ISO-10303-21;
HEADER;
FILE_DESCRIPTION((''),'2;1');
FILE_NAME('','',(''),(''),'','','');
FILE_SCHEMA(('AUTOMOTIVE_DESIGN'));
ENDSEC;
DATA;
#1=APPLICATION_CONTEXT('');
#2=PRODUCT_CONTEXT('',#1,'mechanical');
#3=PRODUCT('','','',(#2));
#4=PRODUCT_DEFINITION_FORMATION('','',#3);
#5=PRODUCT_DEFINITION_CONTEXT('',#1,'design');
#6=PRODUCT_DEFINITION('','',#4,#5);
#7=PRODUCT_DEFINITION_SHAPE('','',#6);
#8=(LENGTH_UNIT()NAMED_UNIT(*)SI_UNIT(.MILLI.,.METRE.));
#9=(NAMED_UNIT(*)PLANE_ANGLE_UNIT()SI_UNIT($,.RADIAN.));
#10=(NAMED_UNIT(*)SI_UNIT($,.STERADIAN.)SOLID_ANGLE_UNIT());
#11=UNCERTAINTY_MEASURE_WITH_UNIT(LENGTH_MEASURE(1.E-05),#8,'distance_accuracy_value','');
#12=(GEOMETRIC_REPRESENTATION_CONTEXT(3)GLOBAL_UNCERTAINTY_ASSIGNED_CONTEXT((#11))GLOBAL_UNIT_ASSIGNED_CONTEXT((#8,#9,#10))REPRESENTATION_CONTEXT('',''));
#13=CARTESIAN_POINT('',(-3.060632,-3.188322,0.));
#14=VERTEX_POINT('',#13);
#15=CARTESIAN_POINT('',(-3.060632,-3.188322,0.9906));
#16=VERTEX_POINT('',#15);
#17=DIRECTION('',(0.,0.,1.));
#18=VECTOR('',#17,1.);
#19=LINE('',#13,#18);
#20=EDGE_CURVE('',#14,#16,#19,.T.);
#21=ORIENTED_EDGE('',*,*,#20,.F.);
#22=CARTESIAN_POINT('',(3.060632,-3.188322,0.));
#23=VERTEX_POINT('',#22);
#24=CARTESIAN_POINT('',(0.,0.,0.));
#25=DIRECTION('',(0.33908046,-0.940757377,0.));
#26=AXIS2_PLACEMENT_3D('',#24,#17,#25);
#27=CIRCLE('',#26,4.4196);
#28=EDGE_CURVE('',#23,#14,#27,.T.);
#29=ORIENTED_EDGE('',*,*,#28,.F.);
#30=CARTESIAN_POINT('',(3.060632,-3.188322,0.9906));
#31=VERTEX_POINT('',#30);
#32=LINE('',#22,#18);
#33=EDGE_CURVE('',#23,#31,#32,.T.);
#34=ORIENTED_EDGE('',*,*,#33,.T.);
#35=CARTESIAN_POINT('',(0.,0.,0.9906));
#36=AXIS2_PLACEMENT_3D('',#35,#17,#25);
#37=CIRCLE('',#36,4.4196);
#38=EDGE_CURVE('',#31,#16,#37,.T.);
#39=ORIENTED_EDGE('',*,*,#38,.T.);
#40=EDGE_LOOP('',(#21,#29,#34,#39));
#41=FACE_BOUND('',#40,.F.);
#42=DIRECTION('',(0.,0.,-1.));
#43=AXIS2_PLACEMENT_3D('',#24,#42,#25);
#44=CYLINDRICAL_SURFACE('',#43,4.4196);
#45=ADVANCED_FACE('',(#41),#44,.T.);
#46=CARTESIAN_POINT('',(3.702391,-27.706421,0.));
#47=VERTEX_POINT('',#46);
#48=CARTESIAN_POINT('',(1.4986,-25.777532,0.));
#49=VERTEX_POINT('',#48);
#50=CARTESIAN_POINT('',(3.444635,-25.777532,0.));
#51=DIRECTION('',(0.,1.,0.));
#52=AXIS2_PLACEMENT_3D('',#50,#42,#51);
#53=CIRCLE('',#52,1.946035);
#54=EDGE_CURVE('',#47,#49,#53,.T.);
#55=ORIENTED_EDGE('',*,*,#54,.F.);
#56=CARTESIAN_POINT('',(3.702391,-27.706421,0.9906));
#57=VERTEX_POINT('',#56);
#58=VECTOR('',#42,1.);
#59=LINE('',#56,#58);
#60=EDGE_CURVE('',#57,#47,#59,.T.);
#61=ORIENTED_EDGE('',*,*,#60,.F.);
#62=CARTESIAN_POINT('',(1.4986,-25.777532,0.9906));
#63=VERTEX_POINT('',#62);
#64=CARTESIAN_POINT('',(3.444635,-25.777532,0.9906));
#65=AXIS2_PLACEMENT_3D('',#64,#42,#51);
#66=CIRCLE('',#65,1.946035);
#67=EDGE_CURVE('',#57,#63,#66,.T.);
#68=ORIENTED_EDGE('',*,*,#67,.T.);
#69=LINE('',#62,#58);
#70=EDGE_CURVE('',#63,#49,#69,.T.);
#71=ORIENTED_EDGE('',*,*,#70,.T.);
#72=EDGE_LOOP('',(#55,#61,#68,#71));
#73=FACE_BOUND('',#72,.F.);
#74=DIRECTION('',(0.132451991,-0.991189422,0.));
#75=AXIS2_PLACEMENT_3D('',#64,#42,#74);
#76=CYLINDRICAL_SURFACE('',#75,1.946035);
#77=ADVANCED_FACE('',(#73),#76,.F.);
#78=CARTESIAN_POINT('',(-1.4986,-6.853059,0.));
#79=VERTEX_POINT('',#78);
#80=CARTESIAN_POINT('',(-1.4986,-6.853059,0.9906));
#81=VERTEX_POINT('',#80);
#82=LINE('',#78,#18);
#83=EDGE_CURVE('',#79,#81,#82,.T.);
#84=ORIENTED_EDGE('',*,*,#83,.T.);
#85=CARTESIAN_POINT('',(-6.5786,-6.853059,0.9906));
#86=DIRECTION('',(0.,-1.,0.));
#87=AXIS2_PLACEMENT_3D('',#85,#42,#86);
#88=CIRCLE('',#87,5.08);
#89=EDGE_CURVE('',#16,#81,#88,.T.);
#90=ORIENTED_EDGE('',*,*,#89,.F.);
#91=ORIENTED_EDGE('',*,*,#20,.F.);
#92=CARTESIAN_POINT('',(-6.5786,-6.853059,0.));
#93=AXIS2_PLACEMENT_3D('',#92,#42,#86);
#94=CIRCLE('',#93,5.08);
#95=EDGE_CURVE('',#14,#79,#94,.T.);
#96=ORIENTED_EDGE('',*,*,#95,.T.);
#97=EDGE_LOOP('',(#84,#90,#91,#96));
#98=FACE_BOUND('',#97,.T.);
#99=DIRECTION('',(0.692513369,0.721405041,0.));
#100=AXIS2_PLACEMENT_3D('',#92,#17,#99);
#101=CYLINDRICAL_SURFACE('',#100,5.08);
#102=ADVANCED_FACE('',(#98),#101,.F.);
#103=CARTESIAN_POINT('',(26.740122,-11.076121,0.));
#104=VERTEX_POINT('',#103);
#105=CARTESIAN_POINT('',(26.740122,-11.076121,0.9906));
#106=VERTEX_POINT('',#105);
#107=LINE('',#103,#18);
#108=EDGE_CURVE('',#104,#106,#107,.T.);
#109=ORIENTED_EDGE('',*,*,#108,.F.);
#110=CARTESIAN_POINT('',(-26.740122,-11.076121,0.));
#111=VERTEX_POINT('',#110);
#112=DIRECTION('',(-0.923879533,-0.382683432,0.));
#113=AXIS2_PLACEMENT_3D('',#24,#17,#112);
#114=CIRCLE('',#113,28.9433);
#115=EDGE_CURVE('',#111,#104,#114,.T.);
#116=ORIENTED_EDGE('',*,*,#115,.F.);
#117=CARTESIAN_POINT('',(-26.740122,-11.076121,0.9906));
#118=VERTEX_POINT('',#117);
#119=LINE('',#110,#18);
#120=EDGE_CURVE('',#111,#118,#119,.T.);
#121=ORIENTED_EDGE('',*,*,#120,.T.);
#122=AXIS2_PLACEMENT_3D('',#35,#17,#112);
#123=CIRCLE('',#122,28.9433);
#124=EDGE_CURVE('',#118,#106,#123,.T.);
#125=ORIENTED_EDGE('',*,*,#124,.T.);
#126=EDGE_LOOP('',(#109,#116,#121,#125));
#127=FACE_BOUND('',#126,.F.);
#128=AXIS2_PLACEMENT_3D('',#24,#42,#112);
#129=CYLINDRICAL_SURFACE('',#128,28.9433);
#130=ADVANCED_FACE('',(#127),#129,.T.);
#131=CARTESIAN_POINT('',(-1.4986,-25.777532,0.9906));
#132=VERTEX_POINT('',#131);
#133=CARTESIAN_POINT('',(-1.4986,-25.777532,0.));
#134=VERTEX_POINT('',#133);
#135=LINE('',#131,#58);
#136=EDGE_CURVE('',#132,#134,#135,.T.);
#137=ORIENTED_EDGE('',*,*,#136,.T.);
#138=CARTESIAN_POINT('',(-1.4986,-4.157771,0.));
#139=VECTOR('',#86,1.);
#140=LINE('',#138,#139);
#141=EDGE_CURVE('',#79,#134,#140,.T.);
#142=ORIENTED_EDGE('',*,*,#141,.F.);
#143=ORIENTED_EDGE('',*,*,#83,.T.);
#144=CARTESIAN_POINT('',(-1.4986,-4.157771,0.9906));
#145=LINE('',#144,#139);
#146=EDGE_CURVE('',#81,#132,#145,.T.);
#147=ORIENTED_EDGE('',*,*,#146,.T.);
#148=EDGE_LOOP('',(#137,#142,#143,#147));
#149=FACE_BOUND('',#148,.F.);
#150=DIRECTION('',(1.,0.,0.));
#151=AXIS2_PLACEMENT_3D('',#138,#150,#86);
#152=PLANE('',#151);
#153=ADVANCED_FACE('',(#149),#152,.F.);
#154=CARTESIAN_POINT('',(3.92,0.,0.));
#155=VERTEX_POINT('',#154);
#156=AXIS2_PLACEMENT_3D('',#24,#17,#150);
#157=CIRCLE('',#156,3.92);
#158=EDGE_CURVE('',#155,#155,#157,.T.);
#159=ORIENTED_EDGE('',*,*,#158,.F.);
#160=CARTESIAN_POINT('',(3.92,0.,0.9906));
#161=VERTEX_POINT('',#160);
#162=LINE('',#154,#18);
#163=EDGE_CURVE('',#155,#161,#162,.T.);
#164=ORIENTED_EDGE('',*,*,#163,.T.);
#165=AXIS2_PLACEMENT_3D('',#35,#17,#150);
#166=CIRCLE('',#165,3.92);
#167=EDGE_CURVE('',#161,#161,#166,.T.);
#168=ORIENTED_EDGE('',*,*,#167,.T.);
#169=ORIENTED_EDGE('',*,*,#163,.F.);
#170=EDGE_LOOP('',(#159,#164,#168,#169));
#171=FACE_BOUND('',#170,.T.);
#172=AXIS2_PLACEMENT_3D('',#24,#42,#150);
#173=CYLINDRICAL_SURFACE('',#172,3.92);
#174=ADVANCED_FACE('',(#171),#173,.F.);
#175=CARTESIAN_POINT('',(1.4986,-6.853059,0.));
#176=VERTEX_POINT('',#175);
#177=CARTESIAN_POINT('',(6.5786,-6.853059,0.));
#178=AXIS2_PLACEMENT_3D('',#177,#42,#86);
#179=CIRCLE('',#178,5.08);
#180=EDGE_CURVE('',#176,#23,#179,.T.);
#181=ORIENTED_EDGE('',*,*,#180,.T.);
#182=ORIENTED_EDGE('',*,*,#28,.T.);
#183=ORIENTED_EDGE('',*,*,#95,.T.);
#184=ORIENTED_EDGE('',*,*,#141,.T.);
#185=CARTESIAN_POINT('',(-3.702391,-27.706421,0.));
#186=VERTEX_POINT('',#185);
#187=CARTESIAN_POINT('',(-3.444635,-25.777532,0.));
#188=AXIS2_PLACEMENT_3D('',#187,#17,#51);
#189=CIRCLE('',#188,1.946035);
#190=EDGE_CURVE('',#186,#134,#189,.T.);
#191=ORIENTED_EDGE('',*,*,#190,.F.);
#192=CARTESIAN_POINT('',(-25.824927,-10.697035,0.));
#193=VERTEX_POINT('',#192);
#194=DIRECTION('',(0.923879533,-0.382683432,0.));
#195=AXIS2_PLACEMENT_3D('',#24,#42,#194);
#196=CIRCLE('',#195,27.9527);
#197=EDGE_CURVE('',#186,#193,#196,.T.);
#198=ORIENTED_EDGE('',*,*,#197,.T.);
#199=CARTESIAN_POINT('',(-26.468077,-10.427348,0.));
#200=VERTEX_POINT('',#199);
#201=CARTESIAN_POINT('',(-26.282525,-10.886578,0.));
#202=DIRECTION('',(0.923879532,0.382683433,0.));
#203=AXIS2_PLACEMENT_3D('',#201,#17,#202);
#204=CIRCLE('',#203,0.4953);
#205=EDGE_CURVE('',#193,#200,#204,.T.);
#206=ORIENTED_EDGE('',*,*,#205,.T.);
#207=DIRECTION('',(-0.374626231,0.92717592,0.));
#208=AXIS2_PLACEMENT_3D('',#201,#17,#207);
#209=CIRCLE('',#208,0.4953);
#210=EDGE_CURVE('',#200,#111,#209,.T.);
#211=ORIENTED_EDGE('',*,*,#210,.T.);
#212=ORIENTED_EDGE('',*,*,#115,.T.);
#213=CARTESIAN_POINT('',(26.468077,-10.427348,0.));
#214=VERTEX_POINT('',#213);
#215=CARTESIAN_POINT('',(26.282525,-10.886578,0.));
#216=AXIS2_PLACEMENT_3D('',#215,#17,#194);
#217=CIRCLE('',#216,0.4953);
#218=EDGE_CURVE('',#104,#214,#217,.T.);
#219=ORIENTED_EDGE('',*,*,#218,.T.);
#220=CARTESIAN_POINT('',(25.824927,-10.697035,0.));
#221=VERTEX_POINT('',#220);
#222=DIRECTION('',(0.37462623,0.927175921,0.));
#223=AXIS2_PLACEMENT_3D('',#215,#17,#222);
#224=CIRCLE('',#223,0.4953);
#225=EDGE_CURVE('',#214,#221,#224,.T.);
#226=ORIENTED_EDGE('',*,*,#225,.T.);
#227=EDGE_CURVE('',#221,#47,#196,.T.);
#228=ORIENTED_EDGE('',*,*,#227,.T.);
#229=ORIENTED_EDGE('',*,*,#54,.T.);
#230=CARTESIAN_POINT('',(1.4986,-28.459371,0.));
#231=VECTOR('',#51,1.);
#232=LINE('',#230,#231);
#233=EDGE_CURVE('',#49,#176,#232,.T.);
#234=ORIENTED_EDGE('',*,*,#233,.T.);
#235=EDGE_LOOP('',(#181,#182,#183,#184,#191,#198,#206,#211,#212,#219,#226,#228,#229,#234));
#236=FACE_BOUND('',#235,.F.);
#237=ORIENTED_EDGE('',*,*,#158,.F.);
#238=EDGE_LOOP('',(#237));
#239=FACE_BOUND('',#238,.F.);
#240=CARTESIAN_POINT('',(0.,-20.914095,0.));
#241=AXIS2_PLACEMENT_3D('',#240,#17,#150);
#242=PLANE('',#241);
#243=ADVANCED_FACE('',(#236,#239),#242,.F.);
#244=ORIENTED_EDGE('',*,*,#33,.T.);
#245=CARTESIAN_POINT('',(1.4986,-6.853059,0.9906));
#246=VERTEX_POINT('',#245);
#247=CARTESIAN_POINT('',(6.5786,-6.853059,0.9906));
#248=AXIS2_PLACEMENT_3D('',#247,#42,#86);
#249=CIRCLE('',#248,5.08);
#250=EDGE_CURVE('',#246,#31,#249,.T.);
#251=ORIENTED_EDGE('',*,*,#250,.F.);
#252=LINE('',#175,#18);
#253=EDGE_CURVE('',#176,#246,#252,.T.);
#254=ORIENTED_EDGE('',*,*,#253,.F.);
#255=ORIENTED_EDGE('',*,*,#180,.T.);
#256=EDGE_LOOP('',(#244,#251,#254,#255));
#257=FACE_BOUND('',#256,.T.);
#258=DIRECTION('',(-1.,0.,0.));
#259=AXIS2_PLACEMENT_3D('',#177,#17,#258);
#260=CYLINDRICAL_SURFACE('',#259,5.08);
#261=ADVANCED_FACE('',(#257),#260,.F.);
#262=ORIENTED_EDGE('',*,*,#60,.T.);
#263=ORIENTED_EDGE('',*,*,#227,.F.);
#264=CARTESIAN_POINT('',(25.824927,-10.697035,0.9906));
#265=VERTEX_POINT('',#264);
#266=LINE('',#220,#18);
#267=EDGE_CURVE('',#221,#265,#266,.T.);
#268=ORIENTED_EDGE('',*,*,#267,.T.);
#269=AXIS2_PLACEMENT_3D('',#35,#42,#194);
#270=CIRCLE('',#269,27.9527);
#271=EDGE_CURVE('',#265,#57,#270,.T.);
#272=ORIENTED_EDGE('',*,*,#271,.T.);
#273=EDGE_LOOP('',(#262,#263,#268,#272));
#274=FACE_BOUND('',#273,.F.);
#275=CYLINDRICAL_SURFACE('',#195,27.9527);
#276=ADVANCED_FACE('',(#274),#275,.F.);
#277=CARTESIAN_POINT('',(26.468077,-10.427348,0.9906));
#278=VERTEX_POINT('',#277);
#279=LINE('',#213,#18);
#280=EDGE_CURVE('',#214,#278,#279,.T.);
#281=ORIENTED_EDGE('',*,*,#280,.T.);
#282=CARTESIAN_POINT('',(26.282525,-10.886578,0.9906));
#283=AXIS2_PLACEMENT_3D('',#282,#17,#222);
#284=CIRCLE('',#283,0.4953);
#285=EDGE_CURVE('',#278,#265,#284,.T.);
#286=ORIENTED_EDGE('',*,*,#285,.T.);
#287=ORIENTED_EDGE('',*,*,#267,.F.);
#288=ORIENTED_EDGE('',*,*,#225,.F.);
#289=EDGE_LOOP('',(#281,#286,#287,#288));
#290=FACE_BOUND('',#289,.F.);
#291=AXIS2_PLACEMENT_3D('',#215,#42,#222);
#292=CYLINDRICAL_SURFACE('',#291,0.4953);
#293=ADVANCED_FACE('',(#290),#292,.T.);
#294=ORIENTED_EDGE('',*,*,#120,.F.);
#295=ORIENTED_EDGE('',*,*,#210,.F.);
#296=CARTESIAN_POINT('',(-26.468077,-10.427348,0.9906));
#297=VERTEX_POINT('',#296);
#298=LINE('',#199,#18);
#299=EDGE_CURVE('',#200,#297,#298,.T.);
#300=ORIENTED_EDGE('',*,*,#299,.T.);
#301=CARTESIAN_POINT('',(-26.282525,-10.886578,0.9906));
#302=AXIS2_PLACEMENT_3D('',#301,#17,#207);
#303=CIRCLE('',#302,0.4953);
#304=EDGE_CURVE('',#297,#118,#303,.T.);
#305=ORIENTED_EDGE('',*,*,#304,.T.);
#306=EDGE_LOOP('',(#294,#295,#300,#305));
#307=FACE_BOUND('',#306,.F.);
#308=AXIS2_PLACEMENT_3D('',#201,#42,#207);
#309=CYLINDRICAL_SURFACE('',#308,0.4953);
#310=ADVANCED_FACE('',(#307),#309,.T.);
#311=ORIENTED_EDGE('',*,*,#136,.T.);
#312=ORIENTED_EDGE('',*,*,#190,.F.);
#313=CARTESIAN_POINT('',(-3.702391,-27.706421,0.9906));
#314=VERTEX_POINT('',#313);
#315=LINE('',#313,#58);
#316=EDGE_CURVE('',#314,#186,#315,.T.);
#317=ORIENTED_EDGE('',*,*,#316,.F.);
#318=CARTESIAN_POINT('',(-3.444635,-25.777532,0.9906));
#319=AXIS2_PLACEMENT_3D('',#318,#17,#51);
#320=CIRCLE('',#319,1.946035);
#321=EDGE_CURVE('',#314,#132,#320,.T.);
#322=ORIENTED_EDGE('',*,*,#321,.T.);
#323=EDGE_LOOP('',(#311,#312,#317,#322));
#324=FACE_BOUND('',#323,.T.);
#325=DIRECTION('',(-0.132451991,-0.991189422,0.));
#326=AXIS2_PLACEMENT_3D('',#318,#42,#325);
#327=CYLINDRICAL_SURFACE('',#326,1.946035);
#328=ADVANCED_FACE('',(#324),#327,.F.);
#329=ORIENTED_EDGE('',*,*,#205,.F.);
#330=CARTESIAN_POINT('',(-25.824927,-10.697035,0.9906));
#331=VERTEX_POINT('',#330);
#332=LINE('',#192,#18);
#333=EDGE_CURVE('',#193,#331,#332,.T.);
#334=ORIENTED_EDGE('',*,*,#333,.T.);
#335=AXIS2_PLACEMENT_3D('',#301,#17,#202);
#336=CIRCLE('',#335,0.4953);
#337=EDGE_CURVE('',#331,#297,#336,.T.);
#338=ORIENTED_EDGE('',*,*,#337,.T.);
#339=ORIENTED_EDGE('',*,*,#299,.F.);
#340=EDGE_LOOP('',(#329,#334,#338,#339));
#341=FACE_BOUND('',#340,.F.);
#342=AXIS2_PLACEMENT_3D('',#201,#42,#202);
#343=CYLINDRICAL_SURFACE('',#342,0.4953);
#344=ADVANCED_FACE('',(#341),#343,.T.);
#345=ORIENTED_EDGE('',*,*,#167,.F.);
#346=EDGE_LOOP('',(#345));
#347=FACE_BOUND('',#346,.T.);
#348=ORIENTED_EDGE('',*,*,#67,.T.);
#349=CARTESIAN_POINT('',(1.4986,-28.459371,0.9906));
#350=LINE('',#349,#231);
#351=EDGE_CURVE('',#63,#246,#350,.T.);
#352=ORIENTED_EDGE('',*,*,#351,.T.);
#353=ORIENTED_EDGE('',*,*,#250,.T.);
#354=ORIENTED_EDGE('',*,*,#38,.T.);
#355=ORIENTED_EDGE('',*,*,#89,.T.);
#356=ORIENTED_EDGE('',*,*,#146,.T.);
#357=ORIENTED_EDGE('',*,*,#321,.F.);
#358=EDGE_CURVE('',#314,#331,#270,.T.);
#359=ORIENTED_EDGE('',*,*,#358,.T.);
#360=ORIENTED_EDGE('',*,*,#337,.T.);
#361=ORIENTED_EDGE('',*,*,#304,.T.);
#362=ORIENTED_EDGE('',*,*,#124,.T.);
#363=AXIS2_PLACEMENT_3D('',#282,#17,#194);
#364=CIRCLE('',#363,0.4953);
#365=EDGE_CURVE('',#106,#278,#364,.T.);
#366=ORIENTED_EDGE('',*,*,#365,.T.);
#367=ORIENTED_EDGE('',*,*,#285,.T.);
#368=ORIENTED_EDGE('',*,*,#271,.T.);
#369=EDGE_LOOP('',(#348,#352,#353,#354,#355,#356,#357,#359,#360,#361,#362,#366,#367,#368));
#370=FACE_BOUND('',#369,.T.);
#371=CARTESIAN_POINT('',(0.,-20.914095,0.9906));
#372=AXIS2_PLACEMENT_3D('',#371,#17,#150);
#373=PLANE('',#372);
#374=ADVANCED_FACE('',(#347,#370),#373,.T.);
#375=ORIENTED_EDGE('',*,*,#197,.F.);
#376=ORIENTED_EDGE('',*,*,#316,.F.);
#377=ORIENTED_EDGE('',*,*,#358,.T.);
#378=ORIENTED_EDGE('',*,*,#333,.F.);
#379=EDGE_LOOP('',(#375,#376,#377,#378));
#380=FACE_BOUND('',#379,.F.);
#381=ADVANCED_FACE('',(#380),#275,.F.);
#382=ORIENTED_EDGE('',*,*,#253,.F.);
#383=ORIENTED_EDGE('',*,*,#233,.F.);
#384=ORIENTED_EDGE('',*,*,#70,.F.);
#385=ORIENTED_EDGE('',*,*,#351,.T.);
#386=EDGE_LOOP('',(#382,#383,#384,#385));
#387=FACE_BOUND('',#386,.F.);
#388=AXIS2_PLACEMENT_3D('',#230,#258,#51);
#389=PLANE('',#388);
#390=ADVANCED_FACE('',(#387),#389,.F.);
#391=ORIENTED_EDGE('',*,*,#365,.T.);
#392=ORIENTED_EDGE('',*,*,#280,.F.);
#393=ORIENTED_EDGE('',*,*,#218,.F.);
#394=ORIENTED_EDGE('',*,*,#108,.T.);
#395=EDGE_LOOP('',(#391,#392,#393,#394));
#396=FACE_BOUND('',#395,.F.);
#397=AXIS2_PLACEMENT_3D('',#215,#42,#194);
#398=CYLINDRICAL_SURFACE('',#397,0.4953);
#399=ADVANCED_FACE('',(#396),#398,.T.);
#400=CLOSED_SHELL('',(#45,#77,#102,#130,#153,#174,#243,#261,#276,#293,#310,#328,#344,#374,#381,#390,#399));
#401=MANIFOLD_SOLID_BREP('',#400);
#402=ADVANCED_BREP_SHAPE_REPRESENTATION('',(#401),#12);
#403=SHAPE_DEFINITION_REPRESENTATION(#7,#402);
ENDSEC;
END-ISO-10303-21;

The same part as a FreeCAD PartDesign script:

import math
import FreeCAD as App
import Part
import Sketcher

V = App.Vector
Q = App.Units.Quantity


def edges_at(feature, points):
    """Names of the edges that pass closest to the given points."""
    edges = feature.Shape.Edges
    near = lambda p: min(range(len(edges)), key=lambda i: edges[i].distToShape(Part.Vertex(*p))[0])
    return sorted({f"Edge{near(p) + 1}" for p in points})

doc = App.newDocument("Part")
params = doc.addObject("Spreadsheet::Sheet", "Params")
for row, (alias, value) in enumerate([
    ("sketch1_radius", "0.174 in"),
    ("sketch1_width", "0.118 in"),
    ("pad1_length", "0.039 in"),
    ("fillet_radius", "0.2 in"),
    ("pad2_length", "0.039 in"),
    ("fillet2_radius", "1.946035 mm"),
], start=1):
    params.set(f"A{row}", alias)
    params.set(f"B{row}", "=" + value)
    params.setAlias(f"B{row}", alias)

body = doc.addObject("PartDesign::Body", "Body")

# Sketch on XY plane
sketch1 = body.newObject("Sketcher::SketchObject", "Sketch")
sketch1.AttachmentSupport = (doc.getObject("XY_Plane"), [""])
sketch1.MapMode = "FlatFace"
sketch1.addGeometry(Part.LineSegment(V(1.4986, -28.459371, 0), V(1.4986, -4.157771, 0)), False)
sketch1.addGeometry(Part.ArcOfCircle(Part.Circle(V(0, 0, 0), V(0, 0, 1), 4.4196), math.radians(-70.179139), math.radians(250.179139)), False)
sketch1.addGeometry(Part.LineSegment(V(-1.4986, -4.157771, 0), V(-1.4986, -28.459371, 0)), False)
sketch1.addGeometry(Part.LineSegment(V(-1.4986, -28.459371, 0), V(1.4986, -28.459371, 0)), False)
sketch1.addGeometry(Part.Circle(V(0, 0, 0), V(0, 0, 1), 3.92), False)
sketch1.addConstraint(Sketcher.Constraint("Coincident", 0, 2, 1, 1))
sketch1.addConstraint(Sketcher.Constraint("Coincident", 1, 2, 2, 1))
sketch1.addConstraint(Sketcher.Constraint("Coincident", 2, 2, 3, 1))
sketch1.addConstraint(Sketcher.Constraint("Coincident", 3, 2, 0, 1))
sketch1.addConstraint(Sketcher.Constraint("Vertical", 0))
sketch1.addConstraint(Sketcher.Constraint("Vertical", 2))
sketch1.addConstraint(Sketcher.Constraint("Horizontal", 3))
sketch1.addConstraint(Sketcher.Constraint("Coincident", 1, 3, -1, 1))
sketch1.addConstraint(Sketcher.Constraint("Coincident", 4, 3, -1, 1))
sketch1.addConstraint(Sketcher.Constraint("Horizontal", 0, 2, 1, 2))
sketch1.addConstraint(Sketcher.Constraint("Radius", 1, Q("0.174 in")))
sketch1.addConstraint(Sketcher.Constraint("Diameter", 4, 7.84))
sketch1.addConstraint(Sketcher.Constraint("DistanceX", 3, 1, 3, 2, Q("0.118 in")))
sketch1.addConstraint(Sketcher.Constraint("DistanceY", 0, 1, 0, 2, 24.3016))
sketch1.setExpression("Constraints[10]", "Params.sketch1_radius")
sketch1.setExpression("Constraints[12]", "Params.sketch1_width")
pad1 = body.newObject("PartDesign::Pad", "Pad")
pad1.Profile = sketch1
pad1.setExpression("Length", "Params.pad1_length")
doc.recompute()

fillet = body.newObject("PartDesign::Fillet", "Fillet")
fillet.Base = (pad1, edges_at(pad1, [(1.499, -4.158, 0.495), (-1.499, -4.158, 0.495)]))
fillet.setExpression("Radius", "Params.fillet_radius")

# Sketch on XY plane
sketch2 = body.newObject("Sketcher::SketchObject", "Sketch001")
sketch2.AttachmentSupport = (doc.getObject("XY_Plane"), [""])
sketch2.MapMode = "FlatFace"
sketch2.addGeometry(Part.ArcOfCircle(Part.Circle(V(26.282525, -10.886578, 0), V(0, 0, 1), 0.4953), math.radians(-22.5), math.radians(67.998787)), False)
sketch2.addGeometry(Part.ArcOfCircle(Part.Circle(V(26.282525, -10.886578, 0), V(0, 0, 1), 0.4953), math.radians(67.998787), math.radians(157.5)), False)
sketch2.addGeometry(Part.ArcOfCircle(Part.Circle(V(0, 0, 0), V(0, 0, 1), 27.9527), math.radians(-157.5), math.radians(-22.5)), False)
sketch2.addGeometry(Part.ArcOfCircle(Part.Circle(V(-26.282525, -10.886578, 0), V(0, 0, 1), 0.4953), math.radians(22.5), math.radians(112.001213)), False)
sketch2.addGeometry(Part.ArcOfCircle(Part.Circle(V(-26.282525, -10.886578, 0), V(0, 0, 1), 0.4953), math.radians(112.001213), math.radians(202.5)), False)
sketch2.addGeometry(Part.ArcOfCircle(Part.Circle(V(0, 0, 0), V(0, 0, 1), 28.9433), math.radians(-157.5), math.radians(-22.5)), False)
sketch2.addConstraint(Sketcher.Constraint("Tangent", 0, 2, 1, 1))
sketch2.addConstraint(Sketcher.Constraint("Tangent", 1, 2, 2, 2))
sketch2.addConstraint(Sketcher.Constraint("Tangent", 2, 1, 3, 1))
sketch2.addConstraint(Sketcher.Constraint("Tangent", 3, 2, 4, 1))
sketch2.addConstraint(Sketcher.Constraint("Tangent", 4, 2, 5, 1))
sketch2.addConstraint(Sketcher.Constraint("Tangent", 5, 2, 0, 1))
sketch2.addConstraint(Sketcher.Constraint("Coincident", 2, 3, -1, 1))
sketch2.addConstraint(Sketcher.Constraint("Coincident", 5, 3, -1, 1))
sketch2.addConstraint(Sketcher.Constraint("Equal", 0, 1))
sketch2.addConstraint(Sketcher.Constraint("Equal", 1, 3))
sketch2.addConstraint(Sketcher.Constraint("Symmetric", 0, 2, 3, 2, -2))
sketch2.addConstraint(Sketcher.Constraint("Radius", 0, Q("0.0195 in")))
sketch2.addConstraint(Sketcher.Constraint("Radius", 2, Q("1.1005 in")))
sketch2.addConstraint(Sketcher.Constraint("DistanceY", 0, 3, -1, 1, 10.886578))
sketch2.addConstraint(Sketcher.Constraint("DistanceY", 0, 2, -1, 1, 10.427348))
pad2 = body.newObject("PartDesign::Pad", "Pad001")
pad2.Profile = sketch2
pad2.setExpression("Length", "Params.pad2_length")
doc.recompute()

fillet2 = body.newObject("PartDesign::Fillet", "Fillet001")
fillet2.Base = (pad2, edges_at(pad2, [(1.499, -27.912, 0.495), (-1.499, -27.912, 0.495)]))
fillet2.setExpression("Radius", "Params.fillet2_radius")

doc.recompute()
